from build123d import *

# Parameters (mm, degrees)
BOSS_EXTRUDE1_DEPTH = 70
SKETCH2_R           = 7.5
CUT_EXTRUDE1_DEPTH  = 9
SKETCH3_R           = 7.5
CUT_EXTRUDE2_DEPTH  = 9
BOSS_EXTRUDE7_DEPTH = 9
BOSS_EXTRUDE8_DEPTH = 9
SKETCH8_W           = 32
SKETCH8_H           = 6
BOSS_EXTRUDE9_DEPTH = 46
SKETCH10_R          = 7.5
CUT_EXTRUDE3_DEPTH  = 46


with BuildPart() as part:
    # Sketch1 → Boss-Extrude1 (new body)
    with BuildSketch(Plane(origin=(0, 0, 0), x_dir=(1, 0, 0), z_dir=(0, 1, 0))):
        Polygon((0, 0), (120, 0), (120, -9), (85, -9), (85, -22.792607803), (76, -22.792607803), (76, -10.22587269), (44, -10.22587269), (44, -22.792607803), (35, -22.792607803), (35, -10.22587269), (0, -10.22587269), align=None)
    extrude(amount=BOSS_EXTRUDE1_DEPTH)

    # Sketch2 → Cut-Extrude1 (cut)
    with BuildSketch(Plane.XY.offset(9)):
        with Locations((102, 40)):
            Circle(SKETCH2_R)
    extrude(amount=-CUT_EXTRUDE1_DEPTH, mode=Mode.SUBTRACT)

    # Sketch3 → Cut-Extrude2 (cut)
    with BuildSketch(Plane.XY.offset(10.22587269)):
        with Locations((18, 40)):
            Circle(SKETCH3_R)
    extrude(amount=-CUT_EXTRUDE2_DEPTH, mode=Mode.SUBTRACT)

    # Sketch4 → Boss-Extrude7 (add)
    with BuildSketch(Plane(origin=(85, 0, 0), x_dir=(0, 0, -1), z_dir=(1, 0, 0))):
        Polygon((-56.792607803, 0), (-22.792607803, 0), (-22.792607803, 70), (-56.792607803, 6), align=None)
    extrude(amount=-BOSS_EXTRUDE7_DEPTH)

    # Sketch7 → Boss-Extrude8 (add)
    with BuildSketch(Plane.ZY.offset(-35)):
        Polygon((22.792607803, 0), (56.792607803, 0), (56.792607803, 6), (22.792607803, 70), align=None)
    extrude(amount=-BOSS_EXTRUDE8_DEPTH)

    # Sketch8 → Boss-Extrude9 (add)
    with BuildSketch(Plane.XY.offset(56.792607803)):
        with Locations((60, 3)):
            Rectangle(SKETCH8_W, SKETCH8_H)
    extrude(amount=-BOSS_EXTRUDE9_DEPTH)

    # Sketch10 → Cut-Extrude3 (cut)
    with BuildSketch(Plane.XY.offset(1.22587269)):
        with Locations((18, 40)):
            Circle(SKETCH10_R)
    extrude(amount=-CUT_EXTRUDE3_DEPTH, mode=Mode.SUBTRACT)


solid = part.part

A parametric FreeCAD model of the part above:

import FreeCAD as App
import Part
import Sketcher

doc = App.newDocument("Part")
body = doc.addObject("PartDesign::Body", "Body")

# Sketch on XZ plane
sketch1 = body.newObject("Sketcher::SketchObject", "Sketch")
sketch1.AttachmentSupport = (doc.getObject("XZ_Plane"), [""])
sketch1.MapMode = "FlatFace"
sketch1.addGeometry([
    Part.LineSegment(App.Vector(120, 0, 0), App.Vector(0, 0, 0)),  # 0
    Part.LineSegment(App.Vector(0, 0, 0), App.Vector(0, 10, 0)),  # 1
    Part.LineSegment(App.Vector(0, 10, 0), App.Vector(35, 10, 0)),  # 2
    Part.LineSegment(App.Vector(35, 10, 0), App.Vector(35, 23, 0)),  # 3
    Part.LineSegment(App.Vector(35, 23, 0), App.Vector(44, 23, 0)),  # 4
    Part.LineSegment(App.Vector(44, 23, 0), App.Vector(44, 10, 0)),  # 5
    Part.LineSegment(App.Vector(44, 10, 0), App.Vector(76, 10, 0)),  # 6
    Part.LineSegment(App.Vector(76, 10, 0), App.Vector(76, 23, 0)),  # 7
    Part.LineSegment(App.Vector(76, 23, 0), App.Vector(85, 23, 0)),  # 8
    Part.LineSegment(App.Vector(85, 23, 0), App.Vector(85, 9, 0)),  # 9
    Part.LineSegment(App.Vector(85, 9, 0), App.Vector(120, 9, 0)),  # 10
    Part.LineSegment(App.Vector(120, 9, 0), App.Vector(120, 0, 0)),  # 11
], False)
sketch1.addConstraint([
    Sketcher.Constraint("Coincident", 0, 2, 1, 1),
    Sketcher.Constraint("Coincident", 1, 2, 2, 1),
    Sketcher.Constraint("Coincident", 2, 2, 3, 1),
    Sketcher.Constraint("Coincident", 3, 2, 4, 1),
    Sketcher.Constraint("Coincident", 4, 2, 5, 1),
    Sketcher.Constraint("Coincident", 5, 2, 6, 1),
    Sketcher.Constraint("Coincident", 6, 2, 7, 1),
    Sketcher.Constraint("Coincident", 7, 2, 8, 1),
    Sketcher.Constraint("Coincident", 8, 2, 9, 1),
    Sketcher.Constraint("Coincident", 9, 2, 10, 1),
    Sketcher.Constraint("Coincident", 10, 2, 11, 1),
    Sketcher.Constraint("Coincident", 11, 2, 0, 1),
    Sketcher.Constraint("Horizontal", 0),
    Sketcher.Constraint("Vertical", 1),
    Sketcher.Constraint("Horizontal", 2),
    Sketcher.Constraint("Vertical", 3),
    Sketcher.Constraint("Horizontal", 4),
    Sketcher.Constraint("Vertical", 5),
    Sketcher.Constraint("Horizontal", 6),
    Sketcher.Constraint("Vertical", 7),
    Sketcher.Constraint("Horizontal", 8),
    Sketcher.Constraint("Vertical", 9),
    Sketcher.Constraint("Horizontal", 10),
    Sketcher.Constraint("Vertical", 11),
    Sketcher.Constraint("Coincident", 0, 2, -1, 1),
    Sketcher.Constraint("Horizontal", 2, 2, 5, 2),
    Sketcher.Constraint("Horizontal", 4, 2, 7, 2),
    Sketcher.Constraint("Equal", 4, 8),
    Sketcher.Constraint("Equal", 2, 10),
    Sketcher.Constraint("Equal", 8, 11),
    Sketcher.Constraint("DistanceX", 0, 2, 0, 1, 120.0),
    Sketcher.Constraint("DistanceX", 2, 1, 2, 2, 35.0),
    Sketcher.Constraint("DistanceX", 4, 1, 4, 2, 9.0),
    Sketcher.Constraint("DistanceY", 1, 1, 1, 2, 10.225873),
    Sketcher.Constraint("DistanceY", 3, 1, 3, 2, 12.566735),
])
pad1 = body.newObject("PartDesign::Pad", "Pad")
pad1.Profile = sketch1
pad1.Length = 70
pad1.Reversed = True

# Sketch on XY plane
sketch2 = body.newObject("Sketcher::SketchObject", "Sketch001")
sketch2.AttachmentSupport = (doc.getObject("XY_Plane"), [""])
sketch2.MapMode = "FlatFace"
sketch2.AttachmentOffset = App.Placement(App.Vector(0, 0, 9), App.Rotation())
sketch2.addGeometry(Part.Circle(App.Vector(102, 40, 0), App.Vector(0, 0, 1), 8), False)
sketch2.addConstraint([
    Sketcher.Constraint("Diameter", 0, 15.0),
    Sketcher.Constraint("DistanceX", -1, 1, 0, 3, 102.0),
    Sketcher.Constraint("DistanceY", -1, 1, 0, 3, 40.0),
])
pocket1 = body.newObject("PartDesign::Pocket", "Pocket")
pocket1.Profile = sketch2
pocket1.Length = 9

# Sketch on XY plane
sketch3 = body.newObject("Sketcher::SketchObject", "Sketch002")
sketch3.AttachmentSupport = (doc.getObject("XY_Plane"), [""])
sketch3.MapMode = "FlatFace"
sketch3.AttachmentOffset = App.Placement(App.Vector(0, 0, 10.225873), App.Rotation())
sketch3.addGeometry(Part.Circle(App.Vector(18, 40, 0), App.Vector(0, 0, 1), 8), False)
sketch3.addConstraint([
    Sketcher.Constraint("Diameter", 0, 15.0),
    Sketcher.Constraint("DistanceX", -1, 1, 0, 3, 18.0),
    Sketcher.Constraint("DistanceY", -1, 1, 0, 3, 40.0),
])
pocket2 = body.newObject("PartDesign::Pocket", "Pocket001")
pocket2.Profile = sketch3
pocket2.Length = 9

# Sketch on YZ plane
sketch4 = body.newObject("Sketcher::SketchObject", "Sketch003")
sketch4.AttachmentSupport = (doc.getObject("YZ_Plane"), [""])
sketch4.MapMode = "FlatFace"
sketch4.AttachmentOffset = App.Placement(App.Vector(0, 0, 85), App.Rotation())
sketch4.addGeometry([
    Part.LineSegment(App.Vector(0, 57, 0), App.Vector(0, 23, 0)),
    Part.LineSegment(App.Vector(0, 23, 0), App.Vector(70, 23, 0)),
    Part.LineSegment(App.Vector(70, 23, 0), App.Vector(6, 57, 0)),
    Part.LineSegment(App.Vector(6, 57, 0), App.Vector(0, 57, 0)),
], False)
sketch4.addConstraint([
    Sketcher.Constraint("Coincident", 0, 2, 1, 1),
    Sketcher.Constraint("Coincident", 1, 2, 2, 1),
    Sketcher.Constraint("Coincident", 2, 2, 3, 1),
    Sketcher.Constraint("Coincident", 3, 2, 0, 1),
    Sketcher.Constraint("Vertical", 0),
    Sketcher.Constraint("Horizontal", 1),
    Sketcher.Constraint("Horizontal", 3),
    Sketcher.Constraint("PointOnObject", 0, 2, -2),
    Sketcher.Constraint("DistanceX", 1, 1, 1, 2, 70.0),
    Sketcher.Constraint("DistanceX", 3, 2, 3, 1, 6.0),
    Sketcher.Constraint("DistanceY", 0, 2, 0, 1, 34.0),
    Sketcher.Constraint("DistanceY", -1, 1, 0, 2, 22.792608),
])
pad2 = body.newObject("PartDesign::Pad", "Pad001")
pad2.Profile = sketch4
pad2.Length = 9
pad2.Reversed = True

# Sketch on YZ plane
sketch5 = body.newObject("Sketcher::SketchObject", "Sketch004")
sketch5.AttachmentSupport = (doc.getObject("YZ_Plane"), [""])
sketch5.MapMode = "FlatFace"
sketch5.AttachmentOffset = App.Placement(App.Vector(0, 0, 35), App.Rotation())
sketch5.addGeometry([
    Part.LineSegment(App.Vector(0, 23, 0), App.Vector(0, 57, 0)),
    Part.LineSegment(App.Vector(0, 57, 0), App.Vector(6, 57, 0)),
    Part.LineSegment(App.Vector(6, 57, 0), App.Vector(70, 23, 0)),
    Part.LineSegment(App.Vector(70, 23, 0), App.Vector(0, 23, 0)),
], False)
sketch5.addConstraint([
    Sketcher.Constraint("Coincident", 0, 2, 1, 1),
    Sketcher.Constraint("Coincident", 1, 2, 2, 1),
    Sketcher.Constraint("Coincident", 2, 2, 3, 1),
    Sketcher.Constraint("Coincident", 3, 2, 0, 1),
    Sketcher.Constraint("Vertical", 0),
    Sketcher.Constraint("Horizontal", 1),
    Sketcher.Constraint("Horizontal", 3),
    Sketcher.Constraint("PointOnObject", 0, 2, -2),
    Sketcher.Constraint("DistanceX", 1, 1, 1, 2, 6.0),
    Sketcher.Constraint("DistanceX", 3, 2, 3, 1, 70.0),
    Sketcher.Constraint("DistanceY", 0, 1, 0, 2, 34.0),
    Sketcher.Constraint("DistanceY", -1, 1, 0, 2, 56.792608),
])
pad3 = body.newObject("PartDesign::Pad", "Pad002")
pad3.Profile = sketch5
pad3.Length = 9

# Sketch on XY plane
sketch6 = body.newObject("Sketcher::SketchObject", "Sketch005")
sketch6.AttachmentSupport = (doc.getObject("XY_Plane"), [""])
sketch6.MapMode = "FlatFace"
sketch6.AttachmentOffset = App.Placement(App.Vector(0, 0, 56.792608), App.Rotation())
sketch6.addGeometry([
    Part.LineSegment(App.Vector(44, 6, 0), App.Vector(44, 0, 0)),
    Part.LineSegment(App.Vector(44, 0, 0), App.Vector(76, 0, 0)),
    Part.LineSegment(App.Vector(76, 0, 0), App.Vector(76, 6, 0)),
    Part.LineSegment(App.Vector(76, 6, 0), App.Vector(44, 6, 0)),
], False)
sketch6.addConstraint([
    Sketcher.Constraint("Coincident", 0, 2, 1, 1),
    Sketcher.Constraint("Coincident", 1, 2, 2, 1),
    Sketcher.Constraint("Coincident", 2, 2, 3, 1),
    Sketcher.Constraint("Coincident", 3, 2, 0, 1),
    Sketcher.Constraint("Vertical", 0),
    Sketcher.Constraint("Horizontal", 1),
    Sketcher.Constraint("Vertical", 2),
    Sketcher.Constraint("Horizontal", 3),
    Sketcher.Constraint("PointOnObject", 0, 2, -1),
    Sketcher.Constraint("DistanceX", 1, 1, 1, 2, 32.0),
    Sketcher.Constraint("DistanceY", 0, 2, 0, 1, 6.0),
    Sketcher.Constraint("DistanceX", -1, 1, 0, 2, 44.0),
])
pad4 = body.newObject("PartDesign::Pad", "Pad003")
pad4.Profile = sketch6
pad4.Length = 46
pad4.Reversed = True

# Sketch on XY plane
sketch7 = body.newObject("Sketcher::SketchObject", "Sketch006")
sketch7.AttachmentSupport = (doc.getObject("XY_Plane"), [""])
sketch7.MapMode = "FlatFace"
sketch7.AttachmentOffset = App.Placement(App.Vector(0, 0, 1.225873), App.Rotation())
sketch7.addGeometry(Part.Circle(App.Vector(18, 40, 0), App.Vector(0, 0, 1), 8), False)
sketch7.addConstraint([
    Sketcher.Constraint("Diameter", 0, 15.0),
    Sketcher.Constraint("DistanceX", -1, 1, 0, 3, 18.0),
    Sketcher.Constraint("DistanceY", -1, 1, 0, 3, 40.0),
])
pocket3 = body.newObject("PartDesign::Pocket", "Pocket002")
pocket3.Profile = sketch7
pocket3.Length = 46

doc.recompute()
